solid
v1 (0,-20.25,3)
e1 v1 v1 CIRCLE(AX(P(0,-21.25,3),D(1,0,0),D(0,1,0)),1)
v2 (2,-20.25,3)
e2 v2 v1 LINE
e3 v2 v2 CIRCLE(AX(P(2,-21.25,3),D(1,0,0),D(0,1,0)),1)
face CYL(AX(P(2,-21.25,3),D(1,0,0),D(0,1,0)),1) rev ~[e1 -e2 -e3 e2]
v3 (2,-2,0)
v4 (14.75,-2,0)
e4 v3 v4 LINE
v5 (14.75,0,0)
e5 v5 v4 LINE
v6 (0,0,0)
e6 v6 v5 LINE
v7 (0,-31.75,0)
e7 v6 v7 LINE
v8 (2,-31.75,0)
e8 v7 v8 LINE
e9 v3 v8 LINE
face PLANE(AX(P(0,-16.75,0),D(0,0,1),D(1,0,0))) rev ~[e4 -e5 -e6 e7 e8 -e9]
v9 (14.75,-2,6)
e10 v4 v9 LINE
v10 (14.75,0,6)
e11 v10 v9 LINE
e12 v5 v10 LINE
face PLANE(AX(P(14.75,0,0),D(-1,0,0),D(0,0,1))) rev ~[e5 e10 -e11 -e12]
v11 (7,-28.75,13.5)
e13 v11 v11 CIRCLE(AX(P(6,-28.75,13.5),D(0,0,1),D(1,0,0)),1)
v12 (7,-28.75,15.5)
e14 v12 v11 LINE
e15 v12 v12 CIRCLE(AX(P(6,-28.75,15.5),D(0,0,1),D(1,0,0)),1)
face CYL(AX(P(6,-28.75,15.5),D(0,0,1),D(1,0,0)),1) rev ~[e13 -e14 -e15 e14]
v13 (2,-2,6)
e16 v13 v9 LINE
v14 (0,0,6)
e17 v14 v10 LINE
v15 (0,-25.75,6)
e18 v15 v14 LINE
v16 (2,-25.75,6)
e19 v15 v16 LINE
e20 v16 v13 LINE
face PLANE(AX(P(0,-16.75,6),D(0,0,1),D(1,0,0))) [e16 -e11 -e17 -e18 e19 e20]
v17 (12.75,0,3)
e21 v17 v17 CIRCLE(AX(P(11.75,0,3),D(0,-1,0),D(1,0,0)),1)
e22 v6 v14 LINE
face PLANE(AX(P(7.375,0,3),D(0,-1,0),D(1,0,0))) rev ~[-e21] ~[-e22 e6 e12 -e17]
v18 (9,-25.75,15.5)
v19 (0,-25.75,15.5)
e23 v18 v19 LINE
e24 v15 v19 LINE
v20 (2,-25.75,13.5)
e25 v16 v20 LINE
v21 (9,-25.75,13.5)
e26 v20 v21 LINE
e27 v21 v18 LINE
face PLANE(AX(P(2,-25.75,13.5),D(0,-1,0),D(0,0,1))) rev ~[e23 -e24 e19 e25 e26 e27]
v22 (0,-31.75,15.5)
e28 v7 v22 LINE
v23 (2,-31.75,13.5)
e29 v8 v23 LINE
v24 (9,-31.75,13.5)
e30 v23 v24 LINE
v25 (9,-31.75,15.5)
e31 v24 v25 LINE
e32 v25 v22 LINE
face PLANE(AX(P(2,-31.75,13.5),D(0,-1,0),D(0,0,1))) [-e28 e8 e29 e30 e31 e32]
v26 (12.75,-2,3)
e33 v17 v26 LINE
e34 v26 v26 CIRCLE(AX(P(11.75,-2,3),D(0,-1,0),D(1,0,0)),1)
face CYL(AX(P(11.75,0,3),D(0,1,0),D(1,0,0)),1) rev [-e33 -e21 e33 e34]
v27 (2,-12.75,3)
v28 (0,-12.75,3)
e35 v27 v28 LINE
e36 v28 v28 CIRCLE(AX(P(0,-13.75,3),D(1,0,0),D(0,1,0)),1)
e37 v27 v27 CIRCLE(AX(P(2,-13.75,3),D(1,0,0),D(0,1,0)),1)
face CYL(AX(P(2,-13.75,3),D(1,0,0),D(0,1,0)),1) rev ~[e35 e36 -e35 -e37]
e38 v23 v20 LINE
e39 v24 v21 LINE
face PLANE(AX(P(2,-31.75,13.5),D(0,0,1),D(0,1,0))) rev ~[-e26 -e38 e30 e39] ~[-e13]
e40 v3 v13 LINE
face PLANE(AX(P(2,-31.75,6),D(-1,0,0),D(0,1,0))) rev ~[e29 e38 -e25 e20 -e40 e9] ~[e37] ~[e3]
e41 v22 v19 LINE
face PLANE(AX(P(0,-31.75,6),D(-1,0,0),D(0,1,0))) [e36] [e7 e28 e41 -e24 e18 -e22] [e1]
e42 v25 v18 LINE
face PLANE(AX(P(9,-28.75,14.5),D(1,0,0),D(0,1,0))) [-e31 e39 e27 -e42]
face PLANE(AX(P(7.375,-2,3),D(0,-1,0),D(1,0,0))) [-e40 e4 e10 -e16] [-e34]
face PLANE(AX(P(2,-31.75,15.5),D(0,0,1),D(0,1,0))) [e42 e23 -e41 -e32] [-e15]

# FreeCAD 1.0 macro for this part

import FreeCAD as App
import Part
import Sketcher
from FreeCAD import Vector

doc = App.newDocument("Part")
body = doc.addObject("PartDesign::Body", "Body")

# Sketch on XZ plane
sketch1 = doc.addObject("Sketcher::SketchObject", "Sketch")
body.addObject(sketch1)
sketch1.AttachmentSupport = (doc.XZ_Plane, [""])
sketch1.MapMode = "FlatFace"
sketch1.addGeometry(Part.LineSegment(Vector(0, 6, 0), Vector(0, 0, 0)), False)
sketch1.addGeometry(Part.LineSegment(Vector(0, 0, 0), Vector(14.8, 0, 0)), False)
sketch1.addGeometry(Part.LineSegment(Vector(14.8, 0, 0), Vector(14.8, 6, 0)), False)
sketch1.addGeometry(Part.LineSegment(Vector(14.8, 6, 0), Vector(0, 6, 0)), False)
sketch1.addGeometry(Part.Circle(Vector(11.8, 3, 0), Vector(0, 0, 1), 1), False)
sketch1.addConstraint(Sketcher.Constraint("Coincident", 0, 2, 1, 1))
sketch1.addConstraint(Sketcher.Constraint("Coincident", 1, 2, 2, 1))
sketch1.addConstraint(Sketcher.Constraint("Coincident", 2, 2, 3, 1))
sketch1.addConstraint(Sketcher.Constraint("Coincident", 3, 2, 0, 1))
sketch1.addConstraint(Sketcher.Constraint("Vertical", 0))
sketch1.addConstraint(Sketcher.Constraint("Horizontal", 1))
sketch1.addConstraint(Sketcher.Constraint("Vertical", 2))
sketch1.addConstraint(Sketcher.Constraint("Horizontal", 3))
sketch1.addConstraint(Sketcher.Constraint("Coincident", 0, 2, -1, 1))
sketch1.addConstraint(Sketcher.Constraint("Diameter", 4, 2.0))
sketch1.addConstraint(Sketcher.Constraint("DistanceY", 0, 2, 0, 1, 6.0))
sketch1.addConstraint(Sketcher.Constraint("DistanceY", -1, 1, 4, 3, 3.0))
sketch1.addConstraint(Sketcher.Constraint("DistanceX", 4, 3, 1, 2, 3.0))
sketch1.addConstraint(Sketcher.Constraint("DistanceX", 1, 1, 1, 2, 14.75))
pad1 = doc.addObject("PartDesign::Pad", "Pad")
body.addObject(pad1)
pad1.Profile = sketch1
pad1.Length = 2

# Sketch on XZ plane
sketch2 = doc.addObject("Sketcher::SketchObject", "Sketch001")
body.addObject(sketch2)
sketch2.AttachmentSupport = (doc.XZ_Plane, [""])
sketch2.MapMode = "FlatFace"
sketch2.AttachmentOffset = App.Placement(Vector(0, 0, 2), App.Rotation())
sketch2.addGeometry(Part.LineSegment(Vector(0, 6, 0), Vector(0, 0, 0)), False)
sketch2.addGeometry(Part.LineSegment(Vector(0, 0, 0), Vector(2, 0, 0)), False)
sketch2.addGeometry(Part.LineSegment(Vector(2, 0, 0), Vector(2, 6, 0)), False)
sketch2.addGeometry(Part.LineSegment(Vector(2, 6, 0), Vector(0, 6, 0)), False)
sketch2.addConstraint(Sketcher.Constraint("Coincident", 0, 2, 1, 1))
sketch2.addConstraint(Sketcher.Constraint("Coincident", 1, 2, 2, 1))
sketch2.addConstraint(Sketcher.Constraint("Coincident", 2, 2, 3, 1))
sketch2.addConstraint(Sketcher.Constraint("Coincident", 3, 2, 0, 1))
sketch2.addConstraint(Sketcher.Constraint("Vertical", 0))
sketch2.addConstraint(Sketcher.Constraint("Horizontal", 1))
sketch2.addConstraint(Sketcher.Constraint("Vertical", 2))
sketch2.addConstraint(Sketcher.Constraint("Horizontal", 3))
sketch2.addConstraint(Sketcher.Constraint("Coincident", 0, 2, -1, 1))
sketch2.addConstraint(Sketcher.Constraint("DistanceX", 1, 1, 1, 2, 2.0))
sketch2.addConstraint(Sketcher.Constraint("DistanceY", 0, 2, 0, 1, 6.0))
pad2 = doc.addObject("PartDesign::Pad", "Pad001")
body.addObject(pad2)
pad2.Profile = sketch2
pad2.Length = 14.75

# Sketch on YZ plane
sketch3 = doc.addObject("Sketcher::SketchObject", "Sketch002")
body.addObject(sketch3)
sketch3.AttachmentSupport = (doc.YZ_Plane, [""])
sketch3.MapMode = "FlatFace"
sketch3.AttachmentOffset = App.Placement(Vector(0, 0, 2), App.Rotation())
sketch3.addGeometry(Part.Circle(Vector(-13.8, 3, 0), Vector(0, 0, 1), 1), False)
sketch3.addConstraint(Sketcher.Constraint("Diameter", 0, 2.0))
sketch3.addConstraint(Sketcher.Constraint("DistanceY", -1, 1, 0, 3, 3.0))
sketch3.addConstraint(Sketcher.Constraint("DistanceX", 0, 3, -1, 1, 13.75))
pocket1 = doc.addObject("PartDesign::Pocket", "Pocket")
body.addObject(pocket1)
pocket1.Profile = sketch3
pocket1.Length = 25

# Sketch on XZ plane
sketch4 = doc.addObject("Sketcher::SketchObject", "Sketch003")
body.addObject(sketch4)
sketch4.AttachmentSupport = (doc.XZ_Plane, [""])
sketch4.MapMode = "FlatFace"
sketch4.AttachmentOffset = App.Placement(Vector(0, 0, 16.75), App.Rotation())
sketch4.addGeometry(Part.LineSegment(Vector(0, 6, 0), Vector(0, 0, 0)), False)
sketch4.addGeometry(Part.LineSegment(Vector(0, 0, 0), Vector(2, 0, 0)), False)
sketch4.addGeometry(Part.LineSegment(Vector(2, 0, 0), Vector(2, 6, 0)), False)
sketch4.addGeometry(Part.LineSegment(Vector(2, 6, 0), Vector(0, 6, 0)), False)
sketch4.addConstraint(Sketcher.Constraint("Coincident", 0, 2, 1, 1))
sketch4.addConstraint(Sketcher.Constraint("Coincident", 1, 2, 2, 1))
sketch4.addConstraint(Sketcher.Constraint("Coincident", 2, 2, 3, 1))
sketch4.addConstraint(Sketcher.Constraint("Coincident", 3, 2, 0, 1))
sketch4.addConstraint(Sketcher.Constraint("Vertical", 0))
sketch4.addConstraint(Sketcher.Constraint("Horizontal", 1))
sketch4.addConstraint(Sketcher.Constraint("Vertical", 2))
sketch4.addConstraint(Sketcher.Constraint("Horizontal", 3))
sketch4.addConstraint(Sketcher.Constraint("Coincident", 0, 2, -1, 1))
sketch4.addConstraint(Sketcher.Constraint("DistanceX", 1, 1, 1, 2, 2.0))
sketch4.addConstraint(Sketcher.Constraint("DistanceY", 0, 2, 0, 1, 6.0))
pad3 = doc.addObject("PartDesign::Pad", "Pad002")
body.addObject(pad3)
pad3.Profile = sketch4
pad3.Length = 15

# Sketch on YZ plane
sketch5 = doc.addObject("Sketcher::SketchObject", "Sketch004")
body.addObject(sketch5)
sketch5.AttachmentSupport = (doc.YZ_Plane, [""])
sketch5.MapMode = "FlatFace"
sketch5.AttachmentOffset = App.Placement(Vector(0, 0, 2), App.Rotation())
sketch5.addGeometry(Part.Circle(Vector(-21.2, 3, 0), Vector(0, 0, 1), 1), False)
sketch5.addConstraint(Sketcher.Constraint("Diameter", 0, 2.0))
sketch5.addConstraint(Sketcher.Constraint("DistanceY", -1, 1, 0, 3, 3.0))
sketch5.addConstraint(Sketcher.Constraint("DistanceX", 0, 3, -1, 1, 21.25))
pocket2 = doc.addObject("PartDesign::Pocket", "Pocket001")
body.addObject(pocket2)
pocket2.Profile = sketch5
pocket2.Length = 25

# Sketch on XY plane
sketch6 = doc.addObject("Sketcher::SketchObject", "Sketch005")
body.addObject(sketch6)
sketch6.AttachmentSupport = (doc.XY_Plane, [""])
sketch6.MapMode = "FlatFace"
sketch6.AttachmentOffset = App.Placement(Vector(0, 0, 6), App.Rotation())
sketch6.addGeometry(Part.LineSegment(Vector(0, -25.8, 0), Vector(0, -31.8, 0)), False)
sketch6.addGeometry(Part.LineSegment(Vector(0, -31.8, 0), Vector(2, -31.8, 0)), False)
sketch6.addGeometry(Part.LineSegment(Vector(2, -31.8, 0), Vector(2, -25.8, 0)), False)
sketch6.addGeometry(Part.LineSegment(Vector(2, -25.8, 0), Vector(0, -25.8, 0)), False)
sketch6.addConstraint(Sketcher.Constraint("Coincident", 0, 2, 1, 1))
sketch6.addConstraint(Sketcher.Constraint("Coincident", 1, 2, 2, 1))
sketch6.addConstraint(Sketcher.Constraint("Coincident", 2, 2, 3, 1))
sketch6.addConstraint(Sketcher.Constraint("Coincident", 3, 2, 0, 1))
sketch6.addConstraint(Sketcher.Constraint("Vertical", 0))
sketch6.addConstraint(Sketcher.Constraint("Horizontal", 1))
sketch6.addConstraint(Sketcher.Constraint("Vertical", 2))
sketch6.addConstraint(Sketcher.Constraint("Horizontal", 3))
sketch6.addConstraint(Sketcher.Constraint("PointOnObject", 0, 2, -2))
sketch6.addConstraint(Sketcher.Constraint("DistanceX", 1, 1, 1, 2, 2.0))
sketch6.addConstraint(Sketcher.Constraint("DistanceY", 0, 2, 0, 1, 6.0))
sketch6.addConstraint(Sketcher.Constraint("DistanceY", 0, 2, -1, 1, 31.75))
pad4 = doc.addObject("PartDesign::Pad", "Pad003")
body.addObject(pad4)
pad4.Profile = sketch6
pad4.Length = 9.5

# Sketch on YZ plane
sketch7 = doc.addObject("Sketcher::SketchObject", "Sketch006")
body.addObject(sketch7)
sketch7.AttachmentSupport = (doc.YZ_Plane, [""])
sketch7.MapMode = "FlatFace"
sketch7.AttachmentOffset = App.Placement(Vector(0, 0, 2), App.Rotation())
sketch7.addGeometry(Part.LineSegment(Vector(-31.8, 15.5, 0), Vector(-31.8, 13.5, 0)), False)
sketch7.addGeometry(Part.LineSegment(Vector(-31.8, 13.5, 0), Vector(-25.8, 13.5, 0)), False)
sketch7.addGeometry(Part.LineSegment(Vector(-25.8, 13.5, 0), Vector(-25.8, 15.5, 0)), False)
sketch7.addGeometry(Part.LineSegment(Vector(-25.8, 15.5, 0), Vector(-31.8, 15.5, 0)), False)
sketch7.addConstraint(Sketcher.Constraint("Coincident", 0, 2, 1, 1))
sketch7.addConstraint(Sketcher.Constraint("Coincident", 1, 2, 2, 1))
sketch7.addConstraint(Sketcher.Constraint("Coincident", 2, 2, 3, 1))
sketch7.addConstraint(Sketcher.Constraint("Coincident", 3, 2, 0, 1))
sketch7.addConstraint(Sketcher.Constraint("Vertical", 0))
sketch7.addConstraint(Sketcher.Constraint("Horizontal", 1))
sketch7.addConstraint(Sketcher.Constraint("Vertical", 2))
sketch7.addConstraint(Sketcher.Constraint("Horizontal", 3))
sketch7.addConstraint(Sketcher.Constraint("DistanceX", 1, 1, 1, 2, 6.0))
sketch7.addConstraint(Sketcher.Constraint("DistanceY", 0, 2, 0, 1, 2.0))
sketch7.addConstraint(Sketcher.Constraint("DistanceY", -1, 1, 0, 2, 13.5))
sketch7.addConstraint(Sketcher.Constraint("DistanceX", 0, 2, -1, 1, 31.75))
pad5 = doc.addObject("PartDesign::Pad", "Pad004")
body.addObject(pad5)
pad5.Profile = sketch7
pad5.Length = 7

# Sketch on XY plane
sketch8 = doc.addObject("Sketcher::SketchObject", "Sketch007")
body.addObject(sketch8)
sketch8.AttachmentSupport = (doc.XY_Plane, [""])
sketch8.MapMode = "FlatFace"
sketch8.AttachmentOffset = App.Placement(Vector(0, 0, 15.5), App.Rotation())
sketch8.addGeometry(Part.Circle(Vector(6, -28.8, 0), Vector(0, 0, 1), 1), False)
sketch8.addConstraint(Sketcher.Constraint("Diameter", 0, 2.0))
sketch8.addConstraint(Sketcher.Constraint("DistanceX", -1, 1, 0, 3, 6.0))
sketch8.addConstraint(Sketcher.Constraint("DistanceY", 0, 3, -1, 1, 28.75))
pocket3 = doc.addObject("PartDesign::Pocket", "Pocket002")
body.addObject(pocket3)
pocket3.Profile = sketch8
pocket3.Length = 25

doc.recompute()
